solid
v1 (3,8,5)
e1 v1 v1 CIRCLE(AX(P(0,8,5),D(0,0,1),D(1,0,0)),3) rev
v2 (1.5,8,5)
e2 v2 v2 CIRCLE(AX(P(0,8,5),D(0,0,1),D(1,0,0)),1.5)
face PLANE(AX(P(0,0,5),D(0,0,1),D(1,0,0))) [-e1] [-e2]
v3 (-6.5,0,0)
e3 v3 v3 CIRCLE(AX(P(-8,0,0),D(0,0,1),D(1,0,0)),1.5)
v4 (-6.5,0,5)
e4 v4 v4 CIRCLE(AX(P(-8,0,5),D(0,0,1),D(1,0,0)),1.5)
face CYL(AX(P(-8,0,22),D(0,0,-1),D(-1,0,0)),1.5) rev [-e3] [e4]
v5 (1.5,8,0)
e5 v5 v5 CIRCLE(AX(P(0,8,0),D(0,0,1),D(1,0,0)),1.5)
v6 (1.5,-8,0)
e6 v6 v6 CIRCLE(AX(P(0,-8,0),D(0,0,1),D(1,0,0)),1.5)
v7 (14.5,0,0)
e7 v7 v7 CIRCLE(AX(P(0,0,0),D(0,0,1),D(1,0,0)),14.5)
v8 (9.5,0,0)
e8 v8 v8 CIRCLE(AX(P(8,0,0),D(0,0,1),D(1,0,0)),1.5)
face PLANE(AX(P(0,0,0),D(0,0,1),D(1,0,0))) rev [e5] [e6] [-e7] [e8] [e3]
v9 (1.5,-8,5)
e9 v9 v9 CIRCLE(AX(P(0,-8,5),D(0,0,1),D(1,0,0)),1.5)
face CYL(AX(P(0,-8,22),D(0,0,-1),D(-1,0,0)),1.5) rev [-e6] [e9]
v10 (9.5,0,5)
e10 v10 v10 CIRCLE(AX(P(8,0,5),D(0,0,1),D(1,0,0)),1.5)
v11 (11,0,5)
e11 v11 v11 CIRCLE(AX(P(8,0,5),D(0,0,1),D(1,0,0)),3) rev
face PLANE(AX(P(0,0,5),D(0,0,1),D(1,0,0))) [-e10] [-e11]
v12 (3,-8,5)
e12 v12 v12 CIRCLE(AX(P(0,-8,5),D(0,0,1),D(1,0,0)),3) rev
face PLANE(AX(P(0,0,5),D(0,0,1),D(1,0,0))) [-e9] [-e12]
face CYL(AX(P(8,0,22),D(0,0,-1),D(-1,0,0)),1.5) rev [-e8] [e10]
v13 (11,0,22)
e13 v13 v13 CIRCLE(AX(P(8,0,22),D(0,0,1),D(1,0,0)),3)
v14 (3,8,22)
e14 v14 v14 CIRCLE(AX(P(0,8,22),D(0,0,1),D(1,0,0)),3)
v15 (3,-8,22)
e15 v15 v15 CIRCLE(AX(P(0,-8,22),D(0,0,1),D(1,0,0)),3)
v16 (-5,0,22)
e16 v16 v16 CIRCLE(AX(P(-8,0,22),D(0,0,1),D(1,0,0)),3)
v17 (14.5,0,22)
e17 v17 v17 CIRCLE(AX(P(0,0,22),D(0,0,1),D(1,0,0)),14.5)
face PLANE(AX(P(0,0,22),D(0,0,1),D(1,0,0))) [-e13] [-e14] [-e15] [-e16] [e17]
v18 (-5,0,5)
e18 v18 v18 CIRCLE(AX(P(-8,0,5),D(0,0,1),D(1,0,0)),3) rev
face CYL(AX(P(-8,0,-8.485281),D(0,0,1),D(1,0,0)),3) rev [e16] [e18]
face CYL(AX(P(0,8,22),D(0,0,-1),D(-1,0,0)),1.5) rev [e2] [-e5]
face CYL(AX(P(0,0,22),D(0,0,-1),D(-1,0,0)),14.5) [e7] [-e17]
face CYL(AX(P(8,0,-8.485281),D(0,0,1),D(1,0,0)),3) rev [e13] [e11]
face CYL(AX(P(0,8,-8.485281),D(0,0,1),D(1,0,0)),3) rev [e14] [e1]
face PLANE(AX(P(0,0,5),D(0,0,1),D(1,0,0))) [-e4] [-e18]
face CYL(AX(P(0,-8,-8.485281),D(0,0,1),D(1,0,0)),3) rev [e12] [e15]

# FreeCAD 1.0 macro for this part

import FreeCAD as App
import Part
import Sketcher

V = App.Vector

doc = App.newDocument("Part")
body = doc.addObject("PartDesign::Body", "Body")

# Sketch on XY plane
sketch1 = body.newObject("Sketcher::SketchObject", "Sketch")
sketch1.AttachmentSupport = (doc.getObject("XY_Plane"), [""])
sketch1.MapMode = "FlatFace"
sketch1.addGeometry([
    Part.Circle(V(0, 0, 0), V(0, 0, 1), 14.5),  # 0
    Part.Circle(V(0, -8, 0), V(0, 0, 1), 1.5),  # 1
    Part.Circle(V(-8, 0, 0), V(0, 0, 1), 1.5),  # 2
    Part.Circle(V(8, 0, 0), V(0, 0, 1), 1.5),  # 3
    Part.Circle(V(0, 8, 0), V(0, 0, 1), 1.5),  # 4
], False)
sketch1.addConstraint([
    Sketcher.Constraint("Coincident", 0, 3, -1, 1),
    Sketcher.Constraint("Equal", 1, 2),
    Sketcher.Constraint("Equal", 2, 3),
    Sketcher.Constraint("Equal", 3, 4),
    Sketcher.Constraint("Symmetric", 2, 3, 3, 3, -1, 1),
    Sketcher.Constraint("Symmetric", 1, 3, 4, 3, -1, 1),
    Sketcher.Constraint("PointOnObject", 1, 3, -2),
    Sketcher.Constraint("PointOnObject", 2, 3, -1),
    Sketcher.Constraint("Diameter", 0, 29.0),
    Sketcher.Constraint("Diameter", 1, 3.0),
    Sketcher.Constraint("DistanceY", 1, 3, -1, 1, 8.0),
    Sketcher.Constraint("DistanceX", 2, 3, -1, 1, 8.0),
])
pad1 = body.newObject("PartDesign::Pad", "Pad")
pad1.Profile = sketch1
pad1.Length = 22

# Sketch on XY plane
sketch2 = body.newObject("Sketcher::SketchObject", "Sketch001")
sketch2.AttachmentSupport = (doc.getObject("XY_Plane"), [""])
sketch2.MapMode = "FlatFace"
sketch2.AttachmentOffset = App.Placement(V(0, 0, 22), App.Rotation())
sketch2.addGeometry([
    Part.Circle(V(0, 8, 0), V(0, 0, 1), 3),
    Part.Circle(V(8, 0, 0), V(0, 0, 1), 3),
    Part.Circle(V(0, -8, 0), V(0, 0, 1), 3),
    Part.Circle(V(-8, 0, 0), V(0, 0, 1), 3),
], False)
sketch2.addConstraint([
    Sketcher.Constraint("Equal", 0, 1),
    Sketcher.Constraint("Equal", 1, 2),
    Sketcher.Constraint("Equal", 2, 3),
    Sketcher.Constraint("Symmetric", 0, 3, 2, 3, -1, 1),
    Sketcher.Constraint("Symmetric", 1, 3, 3, 3, -1, 1),
    Sketcher.Constraint("PointOnObject", 0, 3, -2),
    Sketcher.Constraint("PointOnObject", 1, 3, -1),
    Sketcher.Constraint("Diameter", 0, 6.0),
    Sketcher.Constraint("DistanceY", -1, 1, 0, 3, 8.0),
    Sketcher.Constraint("DistanceX", -1, 1, 1, 3, 8.0),
])
pocket1 = body.newObject("PartDesign::Pocket", "Pocket")
pocket1.Profile = sketch2
pocket1.Length = 17

doc.recompute()
